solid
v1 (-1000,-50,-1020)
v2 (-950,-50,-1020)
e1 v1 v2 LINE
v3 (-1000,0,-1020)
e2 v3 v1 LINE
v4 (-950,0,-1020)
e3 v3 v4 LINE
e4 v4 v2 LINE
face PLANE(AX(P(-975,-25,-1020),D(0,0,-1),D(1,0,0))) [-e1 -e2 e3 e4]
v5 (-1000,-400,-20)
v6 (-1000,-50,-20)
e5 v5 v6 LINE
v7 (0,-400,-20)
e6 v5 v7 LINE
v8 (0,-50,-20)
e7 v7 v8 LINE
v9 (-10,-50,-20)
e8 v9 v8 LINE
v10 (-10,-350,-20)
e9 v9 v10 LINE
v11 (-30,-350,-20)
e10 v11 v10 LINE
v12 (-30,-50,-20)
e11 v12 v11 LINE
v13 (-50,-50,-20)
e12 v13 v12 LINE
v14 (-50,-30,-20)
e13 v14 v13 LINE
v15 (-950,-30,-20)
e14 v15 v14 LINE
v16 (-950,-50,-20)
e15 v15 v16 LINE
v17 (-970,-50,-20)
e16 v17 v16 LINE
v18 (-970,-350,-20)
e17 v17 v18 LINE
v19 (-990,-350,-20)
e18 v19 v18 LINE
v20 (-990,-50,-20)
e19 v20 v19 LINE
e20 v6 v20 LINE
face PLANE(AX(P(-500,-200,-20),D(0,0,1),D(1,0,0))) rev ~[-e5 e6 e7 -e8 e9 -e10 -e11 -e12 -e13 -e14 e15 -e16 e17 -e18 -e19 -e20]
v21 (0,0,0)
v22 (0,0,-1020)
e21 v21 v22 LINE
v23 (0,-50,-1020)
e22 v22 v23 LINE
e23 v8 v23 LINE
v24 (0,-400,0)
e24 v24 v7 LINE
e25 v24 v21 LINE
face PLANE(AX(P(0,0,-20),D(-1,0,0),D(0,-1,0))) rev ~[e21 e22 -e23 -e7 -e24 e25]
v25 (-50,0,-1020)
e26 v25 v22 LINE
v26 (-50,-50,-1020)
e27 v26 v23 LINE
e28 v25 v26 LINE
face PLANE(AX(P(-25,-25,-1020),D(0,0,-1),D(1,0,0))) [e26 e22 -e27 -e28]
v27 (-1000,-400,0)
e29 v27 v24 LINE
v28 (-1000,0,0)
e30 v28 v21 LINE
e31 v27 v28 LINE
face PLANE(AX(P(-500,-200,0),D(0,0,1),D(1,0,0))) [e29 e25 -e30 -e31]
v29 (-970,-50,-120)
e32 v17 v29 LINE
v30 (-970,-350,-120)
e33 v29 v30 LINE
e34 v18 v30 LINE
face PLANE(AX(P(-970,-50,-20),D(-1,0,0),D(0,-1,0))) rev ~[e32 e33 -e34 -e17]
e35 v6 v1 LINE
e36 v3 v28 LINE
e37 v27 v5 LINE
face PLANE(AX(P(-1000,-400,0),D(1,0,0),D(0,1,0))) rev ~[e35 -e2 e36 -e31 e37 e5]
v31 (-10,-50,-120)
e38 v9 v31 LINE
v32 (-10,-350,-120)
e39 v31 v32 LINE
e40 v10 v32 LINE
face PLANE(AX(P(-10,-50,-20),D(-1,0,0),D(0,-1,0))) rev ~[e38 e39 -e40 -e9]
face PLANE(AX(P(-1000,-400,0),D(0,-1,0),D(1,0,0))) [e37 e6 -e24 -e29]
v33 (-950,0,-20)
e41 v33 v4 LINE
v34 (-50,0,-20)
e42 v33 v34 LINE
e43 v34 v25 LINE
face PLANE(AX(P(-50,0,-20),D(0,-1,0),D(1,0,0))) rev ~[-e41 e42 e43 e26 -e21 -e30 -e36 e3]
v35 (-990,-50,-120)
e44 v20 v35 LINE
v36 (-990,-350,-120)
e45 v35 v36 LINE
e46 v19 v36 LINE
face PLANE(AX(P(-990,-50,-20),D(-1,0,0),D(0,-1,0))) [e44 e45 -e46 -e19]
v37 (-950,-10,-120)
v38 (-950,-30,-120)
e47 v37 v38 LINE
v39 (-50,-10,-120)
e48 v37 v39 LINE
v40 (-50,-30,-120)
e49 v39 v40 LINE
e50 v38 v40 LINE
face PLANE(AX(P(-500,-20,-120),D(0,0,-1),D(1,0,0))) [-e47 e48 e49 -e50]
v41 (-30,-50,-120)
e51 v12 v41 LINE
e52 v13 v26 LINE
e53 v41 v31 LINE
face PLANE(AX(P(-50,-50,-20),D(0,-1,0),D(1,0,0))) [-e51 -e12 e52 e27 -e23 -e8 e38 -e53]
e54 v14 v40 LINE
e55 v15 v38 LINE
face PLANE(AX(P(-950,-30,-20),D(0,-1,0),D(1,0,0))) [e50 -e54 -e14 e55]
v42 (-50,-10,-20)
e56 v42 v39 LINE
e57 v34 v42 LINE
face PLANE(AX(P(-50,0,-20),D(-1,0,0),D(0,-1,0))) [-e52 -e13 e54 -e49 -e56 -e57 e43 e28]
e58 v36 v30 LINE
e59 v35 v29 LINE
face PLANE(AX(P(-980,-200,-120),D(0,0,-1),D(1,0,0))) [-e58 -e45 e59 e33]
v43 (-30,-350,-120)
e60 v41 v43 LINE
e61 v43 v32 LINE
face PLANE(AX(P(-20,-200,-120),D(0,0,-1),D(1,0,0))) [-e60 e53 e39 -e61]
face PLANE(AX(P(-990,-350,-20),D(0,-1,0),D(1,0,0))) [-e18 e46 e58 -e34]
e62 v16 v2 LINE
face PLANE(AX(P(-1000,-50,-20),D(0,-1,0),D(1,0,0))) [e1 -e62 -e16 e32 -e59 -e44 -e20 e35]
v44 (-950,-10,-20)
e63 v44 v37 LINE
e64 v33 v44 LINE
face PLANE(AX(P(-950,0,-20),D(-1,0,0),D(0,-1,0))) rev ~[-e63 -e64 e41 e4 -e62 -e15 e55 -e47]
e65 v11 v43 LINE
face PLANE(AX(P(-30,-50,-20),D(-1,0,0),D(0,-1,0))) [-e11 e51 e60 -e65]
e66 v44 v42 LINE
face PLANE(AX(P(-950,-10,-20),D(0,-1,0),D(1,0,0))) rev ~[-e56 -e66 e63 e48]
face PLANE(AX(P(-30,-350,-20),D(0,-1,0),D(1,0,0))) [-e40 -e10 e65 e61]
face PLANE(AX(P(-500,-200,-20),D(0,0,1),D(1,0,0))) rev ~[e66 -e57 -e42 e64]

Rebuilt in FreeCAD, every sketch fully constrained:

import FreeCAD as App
import Part
import Sketcher
Q = App.Units.Quantity


def add_polygon(sketch, points):
    """Adds a closed chain of lines whose ends are joined by coincident constraints."""
    first, n = sketch.GeometryCount, len(points)
    for a, b in zip(points, points[1:] + points[:1]):
        sketch.addGeometry(Part.LineSegment(App.Vector(*a, 0), App.Vector(*b, 0)), False)
    for i in range(n):
        sketch.addConstraint(Sketcher.Constraint("Coincident", first + i, 2, first + (i + 1) % n, 1))

doc = App.newDocument("Part")
body = doc.addObject("PartDesign::Body", "Body")

# Sketch on XY plane
sketch1 = body.newObject("Sketcher::SketchObject", "Sketch")
sketch1.AttachmentSupport = (doc.getObject("XY_Plane"), [""])
sketch1.MapMode = "FlatFace"
add_polygon(sketch1, [(-1000, 0), (-1000, -400), (0, -400), (0, 0)])  # lines 0-3
sketch1.addConstraint([
    Sketcher.Constraint("Vertical", 0),
    Sketcher.Constraint("Horizontal", 1),
    Sketcher.Constraint("Vertical", 2),
    Sketcher.Constraint("Horizontal", 3),
    Sketcher.Constraint("Coincident", 2, 2, -1, 1),
    Sketcher.Constraint("DistanceX", 1, 1, 1, 2, Q("1000 mm")),
    Sketcher.Constraint("DistanceY", 0, 2, 0, 1, Q("400 mm")),
])
pad1 = body.newObject("PartDesign::Pad", "Pad")
pad1.Profile = sketch1
pad1.Length = 20
pad1.Reversed = True

# Sketch on XY plane
sketch2 = body.newObject("Sketcher::SketchObject", "Sketch001")
sketch2.AttachmentSupport = (doc.getObject("XY_Plane"), [""])
sketch2.MapMode = "FlatFace"
sketch2.AttachmentOffset = App.Placement(App.Vector(0, 0, -20), App.Rotation())
add_polygon(sketch2, [(-50, -50), (-50, 0), (0, 0), (0, -50)])  # lines 0-3
add_polygon(sketch2, [(-1000, -50), (-1000, 0), (-950, 0), (-950, -50)])  # lines 4-7
sketch2.addConstraint([
    Sketcher.Constraint("Vertical", 0),
    Sketcher.Constraint("Horizontal", 1),
    Sketcher.Constraint("Vertical", 2),
    Sketcher.Constraint("Horizontal", 3),
    Sketcher.Constraint("Vertical", 4),
    Sketcher.Constraint("Horizontal", 5),
    Sketcher.Constraint("Vertical", 6),
    Sketcher.Constraint("Horizontal", 7),
    Sketcher.Constraint("Coincident", 1, 2, -1, 1),
    Sketcher.Constraint("PointOnObject", 4, 2, -1),
    Sketcher.Constraint("Horizontal", 3, 2, 6, 2),
    Sketcher.Constraint("Equal", 3, 5),
    Sketcher.Constraint("Equal", 7, 0),
    Sketcher.Constraint("DistanceX", 1, 1, 1, 2, Q("50 mm")),
    Sketcher.Constraint("DistanceX", 4, 2, -1, 1, Q("1000 mm")),
])
pad2 = body.newObject("PartDesign::Pad", "Pad001")
pad2.Profile = sketch2
pad2.Length = 1000
pad2.Reversed = True

# Sketch on XY plane
sketch3 = body.newObject("Sketcher::SketchObject", "Sketch002")
sketch3.AttachmentSupport = (doc.getObject("XY_Plane"), [""])
sketch3.MapMode = "FlatFace"
sketch3.AttachmentOffset = App.Placement(App.Vector(0, 0, -20), App.Rotation())
add_polygon(sketch3, [(-950, -30), (-950, -10), (-50, -10), (-50, -30)])  # lines 0-3
add_polygon(sketch3, [(-30, -350), (-30, -50), (-10, -50), (-10, -350)])  # lines 4-7
add_polygon(sketch3, [(-990, -350), (-990, -50), (-970, -50), (-970, -350)])  # lines 8-11
sketch3.addConstraint([
    Sketcher.Constraint("Vertical", 0),
    Sketcher.Constraint("Horizontal", 1),
    Sketcher.Constraint("Vertical", 2),
    Sketcher.Constraint("Horizontal", 3),
    Sketcher.Constraint("Vertical", 4),
    Sketcher.Constraint("Horizontal", 5),
    Sketcher.Constraint("Vertical", 6),
    Sketcher.Constraint("Horizontal", 7),
    Sketcher.Constraint("Vertical", 8),
    Sketcher.Constraint("Horizontal", 9),
    Sketcher.Constraint("Vertical", 10),
    Sketcher.Constraint("Horizontal", 11),
    Sketcher.Constraint("Horizontal", 5, 2, 8, 2),
    Sketcher.Constraint("Horizontal", 7, 2, 10, 2),
    Sketcher.Constraint("Equal", 7, 9),
    Sketcher.Constraint("Equal", 11, 0),
    Sketcher.Constraint("DistanceX", 1, 1, 1, 2, Q("900 mm")),
    Sketcher.Constraint("DistanceX", 5, 1, 5, 2, Q("20 mm")),
    Sketcher.Constraint("DistanceY", 4, 1, 4, 2, Q("300 mm")),
    Sketcher.Constraint("DistanceX", 0, 2, -1, 1, Q("950 mm")),
    Sketcher.Constraint("DistanceY", 0, 2, -1, 1, Q("10 mm")),
    Sketcher.Constraint("DistanceX", 4, 2, -1, 1, Q("30 mm")),
    Sketcher.Constraint("DistanceY", 4, 2, -1, 1, Q("50 mm")),
    Sketcher.Constraint("DistanceX", 8, 2, -1, 1, Q("990 mm")),
])
pad3 = body.newObject("PartDesign::Pad", "Pad002")
pad3.Profile = sketch3
pad3.Length = 100
pad3.Reversed = True

doc.recompute()
